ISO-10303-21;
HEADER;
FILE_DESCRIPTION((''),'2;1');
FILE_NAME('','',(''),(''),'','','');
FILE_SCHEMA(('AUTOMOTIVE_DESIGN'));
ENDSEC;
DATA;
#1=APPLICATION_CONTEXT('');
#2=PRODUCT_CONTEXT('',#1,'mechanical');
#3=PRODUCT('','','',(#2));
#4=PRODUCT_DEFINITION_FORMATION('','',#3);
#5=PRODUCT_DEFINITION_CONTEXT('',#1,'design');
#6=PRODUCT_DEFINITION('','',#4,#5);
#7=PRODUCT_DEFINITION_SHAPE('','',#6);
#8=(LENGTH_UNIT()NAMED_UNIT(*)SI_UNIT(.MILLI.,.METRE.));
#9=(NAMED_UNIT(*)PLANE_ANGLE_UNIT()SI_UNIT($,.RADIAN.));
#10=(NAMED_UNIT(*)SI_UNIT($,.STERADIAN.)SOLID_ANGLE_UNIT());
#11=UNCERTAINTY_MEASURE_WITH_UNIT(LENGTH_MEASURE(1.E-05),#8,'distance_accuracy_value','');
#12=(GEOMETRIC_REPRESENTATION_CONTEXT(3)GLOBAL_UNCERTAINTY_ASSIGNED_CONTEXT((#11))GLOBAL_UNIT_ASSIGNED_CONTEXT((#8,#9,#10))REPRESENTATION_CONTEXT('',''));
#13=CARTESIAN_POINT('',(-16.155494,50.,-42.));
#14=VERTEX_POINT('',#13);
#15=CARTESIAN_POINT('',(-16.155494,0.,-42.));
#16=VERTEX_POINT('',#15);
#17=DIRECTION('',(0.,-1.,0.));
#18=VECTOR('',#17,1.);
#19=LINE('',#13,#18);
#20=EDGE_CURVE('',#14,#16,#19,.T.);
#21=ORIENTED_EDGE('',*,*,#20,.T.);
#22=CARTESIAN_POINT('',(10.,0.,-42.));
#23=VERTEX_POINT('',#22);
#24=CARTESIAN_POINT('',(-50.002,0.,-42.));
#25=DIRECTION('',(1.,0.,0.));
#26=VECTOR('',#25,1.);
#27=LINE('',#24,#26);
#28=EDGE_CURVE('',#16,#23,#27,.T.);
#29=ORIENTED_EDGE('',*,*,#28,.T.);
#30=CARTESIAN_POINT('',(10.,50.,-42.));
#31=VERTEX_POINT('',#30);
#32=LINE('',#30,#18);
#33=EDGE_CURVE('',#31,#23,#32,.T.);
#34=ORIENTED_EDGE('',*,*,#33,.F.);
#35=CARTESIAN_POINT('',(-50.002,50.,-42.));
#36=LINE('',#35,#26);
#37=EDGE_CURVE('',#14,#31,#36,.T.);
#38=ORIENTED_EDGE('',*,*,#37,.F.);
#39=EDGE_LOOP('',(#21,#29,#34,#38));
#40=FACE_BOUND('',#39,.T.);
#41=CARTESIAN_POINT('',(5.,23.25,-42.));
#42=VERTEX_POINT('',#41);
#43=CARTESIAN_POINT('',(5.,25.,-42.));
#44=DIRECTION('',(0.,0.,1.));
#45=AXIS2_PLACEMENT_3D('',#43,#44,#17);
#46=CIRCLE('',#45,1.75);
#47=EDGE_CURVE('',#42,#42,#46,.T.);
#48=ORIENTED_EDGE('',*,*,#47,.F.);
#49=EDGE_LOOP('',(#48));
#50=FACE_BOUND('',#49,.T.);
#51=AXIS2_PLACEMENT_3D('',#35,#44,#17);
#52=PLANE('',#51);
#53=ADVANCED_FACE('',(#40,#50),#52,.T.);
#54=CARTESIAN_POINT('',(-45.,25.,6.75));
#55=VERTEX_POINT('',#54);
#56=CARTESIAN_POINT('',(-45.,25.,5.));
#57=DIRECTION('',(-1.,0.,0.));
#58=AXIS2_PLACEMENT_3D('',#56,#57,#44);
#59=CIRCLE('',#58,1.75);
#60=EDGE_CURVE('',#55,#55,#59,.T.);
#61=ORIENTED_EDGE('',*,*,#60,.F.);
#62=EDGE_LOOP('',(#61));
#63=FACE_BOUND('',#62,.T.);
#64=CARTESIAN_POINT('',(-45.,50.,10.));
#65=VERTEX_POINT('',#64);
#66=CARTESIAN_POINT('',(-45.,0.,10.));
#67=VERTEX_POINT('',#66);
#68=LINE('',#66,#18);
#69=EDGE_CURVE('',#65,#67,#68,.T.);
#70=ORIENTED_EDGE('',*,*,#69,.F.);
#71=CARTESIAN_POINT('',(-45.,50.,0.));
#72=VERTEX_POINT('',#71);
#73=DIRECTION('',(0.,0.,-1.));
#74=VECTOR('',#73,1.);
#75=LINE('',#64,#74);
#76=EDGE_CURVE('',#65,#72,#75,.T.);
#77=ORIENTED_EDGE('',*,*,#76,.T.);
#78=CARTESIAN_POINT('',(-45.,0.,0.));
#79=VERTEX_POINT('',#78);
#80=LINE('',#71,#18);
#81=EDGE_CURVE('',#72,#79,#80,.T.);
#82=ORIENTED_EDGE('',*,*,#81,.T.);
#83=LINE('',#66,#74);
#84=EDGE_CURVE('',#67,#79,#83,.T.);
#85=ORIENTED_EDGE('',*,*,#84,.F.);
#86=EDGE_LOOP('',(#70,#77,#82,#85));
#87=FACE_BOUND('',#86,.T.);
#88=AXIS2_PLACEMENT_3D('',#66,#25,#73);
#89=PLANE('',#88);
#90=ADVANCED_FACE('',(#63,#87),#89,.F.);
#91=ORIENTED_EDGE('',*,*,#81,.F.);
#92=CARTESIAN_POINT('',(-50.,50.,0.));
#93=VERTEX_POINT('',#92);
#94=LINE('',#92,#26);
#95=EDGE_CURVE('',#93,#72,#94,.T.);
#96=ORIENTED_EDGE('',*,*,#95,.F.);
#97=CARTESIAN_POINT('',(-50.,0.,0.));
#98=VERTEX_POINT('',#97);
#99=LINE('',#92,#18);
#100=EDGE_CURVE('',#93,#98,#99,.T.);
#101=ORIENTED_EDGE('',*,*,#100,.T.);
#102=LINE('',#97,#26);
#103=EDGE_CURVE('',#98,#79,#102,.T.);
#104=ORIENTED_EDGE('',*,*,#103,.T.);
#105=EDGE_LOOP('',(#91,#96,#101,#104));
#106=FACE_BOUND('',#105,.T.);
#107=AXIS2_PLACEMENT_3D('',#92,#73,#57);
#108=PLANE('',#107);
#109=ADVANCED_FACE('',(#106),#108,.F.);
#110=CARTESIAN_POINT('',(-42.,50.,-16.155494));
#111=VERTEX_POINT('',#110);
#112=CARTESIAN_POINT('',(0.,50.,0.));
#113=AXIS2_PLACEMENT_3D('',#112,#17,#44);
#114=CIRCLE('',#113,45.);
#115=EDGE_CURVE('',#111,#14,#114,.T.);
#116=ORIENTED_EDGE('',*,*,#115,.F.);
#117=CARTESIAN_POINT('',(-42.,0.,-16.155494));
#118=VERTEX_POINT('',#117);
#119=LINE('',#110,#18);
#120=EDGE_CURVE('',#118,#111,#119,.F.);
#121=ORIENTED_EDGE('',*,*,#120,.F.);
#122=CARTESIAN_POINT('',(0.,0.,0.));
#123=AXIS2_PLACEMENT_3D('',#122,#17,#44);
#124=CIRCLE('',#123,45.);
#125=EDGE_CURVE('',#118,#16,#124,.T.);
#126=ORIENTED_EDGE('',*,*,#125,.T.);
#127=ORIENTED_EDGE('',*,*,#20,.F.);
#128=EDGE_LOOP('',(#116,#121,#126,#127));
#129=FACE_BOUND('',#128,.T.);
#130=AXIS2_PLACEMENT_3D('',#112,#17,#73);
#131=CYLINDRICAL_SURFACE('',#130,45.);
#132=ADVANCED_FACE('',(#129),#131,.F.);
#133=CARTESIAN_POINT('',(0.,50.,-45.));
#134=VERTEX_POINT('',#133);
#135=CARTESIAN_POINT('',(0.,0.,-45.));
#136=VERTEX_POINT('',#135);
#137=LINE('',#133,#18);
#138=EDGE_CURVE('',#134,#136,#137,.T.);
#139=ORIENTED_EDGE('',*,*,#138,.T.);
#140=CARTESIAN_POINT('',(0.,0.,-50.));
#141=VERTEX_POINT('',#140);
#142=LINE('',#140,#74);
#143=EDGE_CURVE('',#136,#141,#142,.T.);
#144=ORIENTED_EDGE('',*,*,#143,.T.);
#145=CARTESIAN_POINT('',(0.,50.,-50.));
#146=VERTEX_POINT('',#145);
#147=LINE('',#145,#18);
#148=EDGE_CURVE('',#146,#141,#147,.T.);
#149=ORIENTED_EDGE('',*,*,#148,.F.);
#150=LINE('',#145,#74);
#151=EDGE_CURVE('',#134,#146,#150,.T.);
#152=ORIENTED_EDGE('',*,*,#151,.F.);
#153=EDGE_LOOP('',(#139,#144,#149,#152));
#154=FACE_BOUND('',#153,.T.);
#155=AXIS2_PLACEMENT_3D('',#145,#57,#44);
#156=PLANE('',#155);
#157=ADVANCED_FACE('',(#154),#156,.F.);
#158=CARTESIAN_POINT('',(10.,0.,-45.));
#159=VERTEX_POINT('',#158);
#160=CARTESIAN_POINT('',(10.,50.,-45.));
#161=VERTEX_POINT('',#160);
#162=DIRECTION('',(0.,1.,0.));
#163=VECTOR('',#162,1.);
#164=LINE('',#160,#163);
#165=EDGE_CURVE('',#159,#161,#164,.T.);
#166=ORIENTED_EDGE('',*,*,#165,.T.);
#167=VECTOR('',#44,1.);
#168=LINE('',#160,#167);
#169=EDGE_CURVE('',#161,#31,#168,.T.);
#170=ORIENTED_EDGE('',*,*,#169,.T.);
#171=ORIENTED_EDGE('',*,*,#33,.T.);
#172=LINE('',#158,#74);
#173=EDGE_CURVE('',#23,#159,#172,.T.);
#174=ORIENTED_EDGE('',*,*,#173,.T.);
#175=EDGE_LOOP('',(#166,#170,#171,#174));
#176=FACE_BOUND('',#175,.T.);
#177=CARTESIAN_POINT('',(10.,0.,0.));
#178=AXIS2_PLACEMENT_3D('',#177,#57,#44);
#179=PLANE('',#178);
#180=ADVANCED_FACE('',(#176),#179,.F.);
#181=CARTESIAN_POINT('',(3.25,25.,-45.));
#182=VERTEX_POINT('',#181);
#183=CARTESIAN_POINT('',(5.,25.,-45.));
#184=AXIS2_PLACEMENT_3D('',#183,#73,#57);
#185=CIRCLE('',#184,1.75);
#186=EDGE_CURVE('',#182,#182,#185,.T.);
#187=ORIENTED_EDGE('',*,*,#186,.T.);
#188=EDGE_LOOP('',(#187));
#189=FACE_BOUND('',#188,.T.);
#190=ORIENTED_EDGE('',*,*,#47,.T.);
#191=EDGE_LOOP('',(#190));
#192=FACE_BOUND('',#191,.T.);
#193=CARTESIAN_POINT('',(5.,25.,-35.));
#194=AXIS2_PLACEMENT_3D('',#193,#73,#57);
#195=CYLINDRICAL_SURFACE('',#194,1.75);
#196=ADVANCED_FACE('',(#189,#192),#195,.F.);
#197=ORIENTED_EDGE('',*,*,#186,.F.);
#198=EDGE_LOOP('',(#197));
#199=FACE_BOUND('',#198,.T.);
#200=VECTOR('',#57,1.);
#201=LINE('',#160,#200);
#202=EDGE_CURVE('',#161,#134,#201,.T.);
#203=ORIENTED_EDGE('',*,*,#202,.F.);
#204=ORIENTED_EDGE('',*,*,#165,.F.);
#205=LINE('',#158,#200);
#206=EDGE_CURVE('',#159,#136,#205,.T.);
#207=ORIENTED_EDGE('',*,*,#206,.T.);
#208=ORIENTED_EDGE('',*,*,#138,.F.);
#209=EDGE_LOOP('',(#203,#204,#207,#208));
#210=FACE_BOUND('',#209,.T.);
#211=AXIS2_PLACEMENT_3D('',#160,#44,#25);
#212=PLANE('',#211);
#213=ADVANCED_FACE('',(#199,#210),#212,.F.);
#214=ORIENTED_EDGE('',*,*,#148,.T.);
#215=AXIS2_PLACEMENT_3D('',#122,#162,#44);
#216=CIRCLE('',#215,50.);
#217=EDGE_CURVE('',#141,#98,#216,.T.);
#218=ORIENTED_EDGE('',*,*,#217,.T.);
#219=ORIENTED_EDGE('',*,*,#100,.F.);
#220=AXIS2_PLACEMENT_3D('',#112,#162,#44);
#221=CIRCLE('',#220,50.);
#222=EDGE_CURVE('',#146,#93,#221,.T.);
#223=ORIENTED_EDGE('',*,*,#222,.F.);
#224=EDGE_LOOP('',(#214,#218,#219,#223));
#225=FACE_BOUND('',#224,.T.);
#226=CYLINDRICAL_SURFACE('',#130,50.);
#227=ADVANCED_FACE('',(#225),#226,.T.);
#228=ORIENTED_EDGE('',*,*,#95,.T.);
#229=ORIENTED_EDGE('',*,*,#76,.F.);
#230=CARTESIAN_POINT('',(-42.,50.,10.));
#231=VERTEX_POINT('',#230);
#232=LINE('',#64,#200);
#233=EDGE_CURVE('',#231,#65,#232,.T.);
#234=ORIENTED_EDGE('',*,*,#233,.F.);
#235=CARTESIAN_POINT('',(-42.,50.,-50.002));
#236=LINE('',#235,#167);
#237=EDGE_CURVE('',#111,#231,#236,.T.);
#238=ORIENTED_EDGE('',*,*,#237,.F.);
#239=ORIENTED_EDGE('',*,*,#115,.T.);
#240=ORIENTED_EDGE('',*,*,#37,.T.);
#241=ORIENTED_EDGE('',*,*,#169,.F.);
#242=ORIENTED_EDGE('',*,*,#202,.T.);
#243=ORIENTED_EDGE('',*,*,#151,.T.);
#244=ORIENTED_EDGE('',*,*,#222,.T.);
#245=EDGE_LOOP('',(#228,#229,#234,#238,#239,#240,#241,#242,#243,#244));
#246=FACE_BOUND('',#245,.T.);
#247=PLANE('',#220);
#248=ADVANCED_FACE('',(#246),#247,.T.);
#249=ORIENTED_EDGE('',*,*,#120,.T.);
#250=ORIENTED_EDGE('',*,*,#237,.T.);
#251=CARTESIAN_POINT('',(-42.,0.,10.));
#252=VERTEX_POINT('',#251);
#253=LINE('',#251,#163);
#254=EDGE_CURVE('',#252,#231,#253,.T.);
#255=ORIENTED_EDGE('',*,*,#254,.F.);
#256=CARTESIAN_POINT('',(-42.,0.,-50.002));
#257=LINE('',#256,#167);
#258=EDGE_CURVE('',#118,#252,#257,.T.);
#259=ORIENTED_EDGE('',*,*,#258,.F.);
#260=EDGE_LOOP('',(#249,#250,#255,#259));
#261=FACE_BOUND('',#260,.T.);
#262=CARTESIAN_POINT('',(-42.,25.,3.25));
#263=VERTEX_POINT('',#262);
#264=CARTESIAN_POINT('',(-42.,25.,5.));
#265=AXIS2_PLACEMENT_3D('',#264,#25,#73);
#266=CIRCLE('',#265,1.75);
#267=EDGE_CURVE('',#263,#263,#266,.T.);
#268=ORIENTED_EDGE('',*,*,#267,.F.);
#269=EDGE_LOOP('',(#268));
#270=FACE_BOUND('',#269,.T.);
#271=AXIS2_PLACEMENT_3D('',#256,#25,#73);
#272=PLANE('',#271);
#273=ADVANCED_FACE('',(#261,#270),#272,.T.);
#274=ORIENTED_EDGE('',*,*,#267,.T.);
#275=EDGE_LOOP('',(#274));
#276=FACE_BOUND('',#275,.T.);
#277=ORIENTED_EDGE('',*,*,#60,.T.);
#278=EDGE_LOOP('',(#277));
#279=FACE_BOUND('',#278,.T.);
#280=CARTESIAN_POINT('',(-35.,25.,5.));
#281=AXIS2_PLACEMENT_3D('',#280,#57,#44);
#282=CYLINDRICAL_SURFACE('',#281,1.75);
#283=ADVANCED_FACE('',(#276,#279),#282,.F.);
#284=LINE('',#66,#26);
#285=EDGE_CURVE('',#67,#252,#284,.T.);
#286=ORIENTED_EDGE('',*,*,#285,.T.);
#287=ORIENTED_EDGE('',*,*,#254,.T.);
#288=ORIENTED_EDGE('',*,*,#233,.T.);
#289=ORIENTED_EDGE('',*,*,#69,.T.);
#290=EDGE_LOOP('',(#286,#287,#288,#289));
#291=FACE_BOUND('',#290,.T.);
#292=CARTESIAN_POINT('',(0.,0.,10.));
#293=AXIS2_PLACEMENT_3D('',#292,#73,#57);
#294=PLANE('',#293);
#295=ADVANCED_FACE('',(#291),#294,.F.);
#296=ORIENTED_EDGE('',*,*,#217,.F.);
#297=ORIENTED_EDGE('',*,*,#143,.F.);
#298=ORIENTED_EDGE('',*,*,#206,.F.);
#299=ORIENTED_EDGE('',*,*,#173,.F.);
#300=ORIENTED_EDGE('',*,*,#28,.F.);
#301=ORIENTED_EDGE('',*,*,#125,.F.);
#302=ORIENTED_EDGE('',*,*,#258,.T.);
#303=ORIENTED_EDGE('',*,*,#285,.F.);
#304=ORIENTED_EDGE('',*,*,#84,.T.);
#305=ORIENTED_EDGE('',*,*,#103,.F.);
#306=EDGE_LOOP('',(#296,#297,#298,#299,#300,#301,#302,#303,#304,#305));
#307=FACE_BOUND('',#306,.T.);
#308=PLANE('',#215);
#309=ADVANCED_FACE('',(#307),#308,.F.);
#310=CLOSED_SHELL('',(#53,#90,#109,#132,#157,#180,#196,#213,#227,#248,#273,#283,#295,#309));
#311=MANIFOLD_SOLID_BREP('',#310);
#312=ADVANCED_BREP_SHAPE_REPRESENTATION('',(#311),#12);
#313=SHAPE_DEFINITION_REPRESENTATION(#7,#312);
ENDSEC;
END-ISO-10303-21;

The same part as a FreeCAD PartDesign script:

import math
import FreeCAD as App
import Part
import Sketcher
from FreeCAD import Vector
Q = App.Units.Quantity


def add_polygon(sketch, points):
    """Adds a closed chain of lines whose ends are joined by coincident constraints."""
    first, n = sketch.GeometryCount, len(points)
    for a, b in zip(points, points[1:] + points[:1]):
        sketch.addGeometry(Part.LineSegment(App.Vector(*a, 0), App.Vector(*b, 0)), False)
    for i in range(n):
        sketch.addConstraint(Sketcher.Constraint("Coincident", first + i, 2, first + (i + 1) % n, 1))

doc = App.newDocument("Part")
body = doc.addObject("PartDesign::Body", "Body")
body.AllowCompound = True

# Sketch on XZ plane
sketch1 = body.newObject("Sketcher::SketchObject", "Sketch")
sketch1.AttachmentSupport = (doc.getObject("XZ_Plane"), [""])
sketch1.MapMode = "FlatFace"
sketch1.addGeometry([
    Part.LineSegment(Vector(-50, 0, 0), Vector(-45, 0, 0)),
    Part.ArcOfCircle(Part.Circle(Vector(0, 0, 0), Vector(0, 0, 1), 45), math.radians(-180), math.radians(-90)),
    Part.LineSegment(Vector(0, -45, 0), Vector(0, -50, 0)),
    Part.ArcOfCircle(Part.Circle(Vector(0, 0, 0), Vector(0, 0, 1), 50), math.radians(-180), math.radians(-90)),
], False)
sketch1.addConstraint([
    Sketcher.Constraint("Coincident", 0, 2, 1, 1),
    Sketcher.Constraint("Coincident", 1, 2, 2, 1),
    Sketcher.Constraint("Coincident", 2, 2, 3, 2),
    Sketcher.Constraint("Coincident", 3, 1, 0, 1),
    Sketcher.Constraint("Horizontal", 0),
    Sketcher.Constraint("Vertical", 2),
    Sketcher.Constraint("Coincident", 1, 3, -1, 1),
    Sketcher.Constraint("Coincident", 3, 3, -1, 1),
    Sketcher.Constraint("PointOnObject", 0, 2, -1),
    Sketcher.Constraint("PointOnObject", 1, 2, -2),
    Sketcher.Constraint("Radius", 1, Q("45 mm")),
    Sketcher.Constraint("Radius", 3, Q("50 mm")),
])
pad1 = body.newObject("PartDesign::Pad", "Pad")
pad1.Profile = sketch1
pad1.Length = 50
pad1.Reversed = True

# Sketch on XY plane
sketch2 = body.newObject("Sketcher::SketchObject", "Sketch001")
sketch2.AttachmentSupport = (doc.getObject("XY_Plane"), [""])
sketch2.MapMode = "FlatFace"
add_polygon(sketch2, [(-45, 50), (-45, 0), (-42, 0), (-42, 50)])  # lines 0-3
sketch2.addConstraint([
    Sketcher.Constraint("Vertical", 0),
    Sketcher.Constraint("Horizontal", 1),
    Sketcher.Constraint("Vertical", 2),
    Sketcher.Constraint("Horizontal", 3),
    Sketcher.Constraint("PointOnObject", 0, 2, -1),
    Sketcher.Constraint("DistanceX", 1, 1, 1, 2, Q("3 mm")),
    Sketcher.Constraint("DistanceY", 0, 2, 0, 1, Q("50 mm")),
    Sketcher.Constraint("DistanceX", 0, 2, -1, 1, Q("45 mm")),
])
pad2 = body.newObject("PartDesign::Pad", "Pad001")
pad2.Profile = sketch2
pad2.Length = 10

# Sketch on XY plane
sketch3 = body.newObject("Sketcher::SketchObject", "Sketch002")
sketch3.AttachmentSupport = (doc.getObject("XY_Plane"), [""])
sketch3.MapMode = "FlatFace"
add_polygon(sketch3, [(-45, 50), (-45, 0), (-42, 0), (-42, 50)])  # lines 0-3
sketch3.addConstraint([
    Sketcher.Constraint("Vertical", 0),
    Sketcher.Constraint("Horizontal", 1),
    Sketcher.Constraint("Vertical", 2),
    Sketcher.Constraint("Horizontal", 3),
    Sketcher.Constraint("PointOnObject", 0, 2, -1),
    Sketcher.Constraint("DistanceX", 1, 1, 1, 2, Q("3 mm")),
    Sketcher.Constraint("DistanceY", 0, 2, 0, 1, Q("50 mm")),
    Sketcher.Constraint("DistanceX", 0, 2, -1, 1, Q("45 mm")),
])
pad3 = body.newObject("PartDesign::Pad", "Pad002")
pad3.Profile = sketch3
pad3.Length = 16.155494
pad3.Reversed = True

# Sketch on YZ plane
sketch4 = body.newObject("Sketcher::SketchObject", "Sketch003")
sketch4.AttachmentSupport = (doc.getObject("YZ_Plane"), [""])
sketch4.MapMode = "FlatFace"
add_polygon(sketch4, [(50, -42), (0, -42), (0, -45), (50, -45)])  # lines 0-3
sketch4.addConstraint([
    Sketcher.Constraint("Horizontal", 0),
    Sketcher.Constraint("Vertical", 1),
    Sketcher.Constraint("Horizontal", 2),
    Sketcher.Constraint("Vertical", 3),
    Sketcher.Constraint("PointOnObject", 0, 2, -2),
    Sketcher.Constraint("DistanceX", 0, 2, 0, 1, Q("50 mm")),
    Sketcher.Constraint("DistanceY", 1, 2, 1, 1, Q("3 mm")),
    Sketcher.Constraint("DistanceY", 0, 2, -1, 1, Q("42 mm")),
])
pad4 = body.newObject("PartDesign::Pad", "Pad003")
pad4.Profile = sketch4
pad4.Length = 10

# Sketch on YZ plane
sketch5 = body.newObject("Sketcher::SketchObject", "Sketch004")
sketch5.AttachmentSupport = (doc.getObject("YZ_Plane"), [""])
sketch5.MapMode = "FlatFace"
add_polygon(sketch5, [(50, -42), (0, -42), (0, -45), (50, -45)])  # lines 0-3
sketch5.addConstraint([
    Sketcher.Constraint("Horizontal", 0),
    Sketcher.Constraint("Vertical", 1),
    Sketcher.Constraint("Horizontal", 2),
    Sketcher.Constraint("Vertical", 3),
    Sketcher.Constraint("PointOnObject", 0, 2, -2),
    Sketcher.Constraint("DistanceX", 0, 2, 0, 1, Q("50 mm")),
    Sketcher.Constraint("DistanceY", 1, 2, 1, 1, Q("3 mm")),
    Sketcher.Constraint("DistanceY", 0, 2, -1, 1, Q("42 mm")),
])
pad5 = body.newObject("PartDesign::Pad", "Pad004")
pad5.Profile = sketch5
pad5.Length = 16.155494
pad5.Reversed = True

# Sketch on XY plane
sketch6 = body.newObject("Sketcher::SketchObject", "Sketch005")
sketch6.AttachmentSupport = (doc.getObject("XY_Plane"), [""])
sketch6.MapMode = "FlatFace"
sketch6.AttachmentOffset = App.Placement(Vector(0, 0, -45), App.Rotation())
sketch6.addGeometry(Part.Circle(Vector(5, 25, 0), Vector(0, 0, 1), 1.75), False)
sketch6.addConstraint([
    Sketcher.Constraint("Diameter", 0, Q("3.5 mm")),
    Sketcher.Constraint("DistanceX", -1, 1, 0, 3, Q("5 mm")),
    Sketcher.Constraint("DistanceY", -1, 1, 0, 3, Q("25 mm")),
])
pocket1 = body.newObject("PartDesign::Pocket", "Pocket")
pocket1.Profile = sketch6
pocket1.Length = 10
pocket1.Reversed = True

# Sketch on YZ plane
sketch7 = body.newObject("Sketcher::SketchObject", "Sketch006")
sketch7.AttachmentSupport = (doc.getObject("YZ_Plane"), [""])
sketch7.MapMode = "FlatFace"
sketch7.AttachmentOffset = App.Placement(Vector(0, 0, -45), App.Rotation())
sketch7.addGeometry(Part.Circle(Vector(25, 5, 0), Vector(0, 0, 1), 1.75), False)
sketch7.addConstraint([
    Sketcher.Constraint("Diameter", 0, Q("3.5 mm")),
    Sketcher.Constraint("DistanceX", -1, 1, 0, 3, Q("25 mm")),
    Sketcher.Constraint("DistanceY", -1, 1, 0, 3, Q("5 mm")),
])
pocket2 = body.newObject("PartDesign::Pocket", "Pocket001")
pocket2.Profile = sketch7
pocket2.Length = 10
pocket2.Reversed = True

doc.recompute()
